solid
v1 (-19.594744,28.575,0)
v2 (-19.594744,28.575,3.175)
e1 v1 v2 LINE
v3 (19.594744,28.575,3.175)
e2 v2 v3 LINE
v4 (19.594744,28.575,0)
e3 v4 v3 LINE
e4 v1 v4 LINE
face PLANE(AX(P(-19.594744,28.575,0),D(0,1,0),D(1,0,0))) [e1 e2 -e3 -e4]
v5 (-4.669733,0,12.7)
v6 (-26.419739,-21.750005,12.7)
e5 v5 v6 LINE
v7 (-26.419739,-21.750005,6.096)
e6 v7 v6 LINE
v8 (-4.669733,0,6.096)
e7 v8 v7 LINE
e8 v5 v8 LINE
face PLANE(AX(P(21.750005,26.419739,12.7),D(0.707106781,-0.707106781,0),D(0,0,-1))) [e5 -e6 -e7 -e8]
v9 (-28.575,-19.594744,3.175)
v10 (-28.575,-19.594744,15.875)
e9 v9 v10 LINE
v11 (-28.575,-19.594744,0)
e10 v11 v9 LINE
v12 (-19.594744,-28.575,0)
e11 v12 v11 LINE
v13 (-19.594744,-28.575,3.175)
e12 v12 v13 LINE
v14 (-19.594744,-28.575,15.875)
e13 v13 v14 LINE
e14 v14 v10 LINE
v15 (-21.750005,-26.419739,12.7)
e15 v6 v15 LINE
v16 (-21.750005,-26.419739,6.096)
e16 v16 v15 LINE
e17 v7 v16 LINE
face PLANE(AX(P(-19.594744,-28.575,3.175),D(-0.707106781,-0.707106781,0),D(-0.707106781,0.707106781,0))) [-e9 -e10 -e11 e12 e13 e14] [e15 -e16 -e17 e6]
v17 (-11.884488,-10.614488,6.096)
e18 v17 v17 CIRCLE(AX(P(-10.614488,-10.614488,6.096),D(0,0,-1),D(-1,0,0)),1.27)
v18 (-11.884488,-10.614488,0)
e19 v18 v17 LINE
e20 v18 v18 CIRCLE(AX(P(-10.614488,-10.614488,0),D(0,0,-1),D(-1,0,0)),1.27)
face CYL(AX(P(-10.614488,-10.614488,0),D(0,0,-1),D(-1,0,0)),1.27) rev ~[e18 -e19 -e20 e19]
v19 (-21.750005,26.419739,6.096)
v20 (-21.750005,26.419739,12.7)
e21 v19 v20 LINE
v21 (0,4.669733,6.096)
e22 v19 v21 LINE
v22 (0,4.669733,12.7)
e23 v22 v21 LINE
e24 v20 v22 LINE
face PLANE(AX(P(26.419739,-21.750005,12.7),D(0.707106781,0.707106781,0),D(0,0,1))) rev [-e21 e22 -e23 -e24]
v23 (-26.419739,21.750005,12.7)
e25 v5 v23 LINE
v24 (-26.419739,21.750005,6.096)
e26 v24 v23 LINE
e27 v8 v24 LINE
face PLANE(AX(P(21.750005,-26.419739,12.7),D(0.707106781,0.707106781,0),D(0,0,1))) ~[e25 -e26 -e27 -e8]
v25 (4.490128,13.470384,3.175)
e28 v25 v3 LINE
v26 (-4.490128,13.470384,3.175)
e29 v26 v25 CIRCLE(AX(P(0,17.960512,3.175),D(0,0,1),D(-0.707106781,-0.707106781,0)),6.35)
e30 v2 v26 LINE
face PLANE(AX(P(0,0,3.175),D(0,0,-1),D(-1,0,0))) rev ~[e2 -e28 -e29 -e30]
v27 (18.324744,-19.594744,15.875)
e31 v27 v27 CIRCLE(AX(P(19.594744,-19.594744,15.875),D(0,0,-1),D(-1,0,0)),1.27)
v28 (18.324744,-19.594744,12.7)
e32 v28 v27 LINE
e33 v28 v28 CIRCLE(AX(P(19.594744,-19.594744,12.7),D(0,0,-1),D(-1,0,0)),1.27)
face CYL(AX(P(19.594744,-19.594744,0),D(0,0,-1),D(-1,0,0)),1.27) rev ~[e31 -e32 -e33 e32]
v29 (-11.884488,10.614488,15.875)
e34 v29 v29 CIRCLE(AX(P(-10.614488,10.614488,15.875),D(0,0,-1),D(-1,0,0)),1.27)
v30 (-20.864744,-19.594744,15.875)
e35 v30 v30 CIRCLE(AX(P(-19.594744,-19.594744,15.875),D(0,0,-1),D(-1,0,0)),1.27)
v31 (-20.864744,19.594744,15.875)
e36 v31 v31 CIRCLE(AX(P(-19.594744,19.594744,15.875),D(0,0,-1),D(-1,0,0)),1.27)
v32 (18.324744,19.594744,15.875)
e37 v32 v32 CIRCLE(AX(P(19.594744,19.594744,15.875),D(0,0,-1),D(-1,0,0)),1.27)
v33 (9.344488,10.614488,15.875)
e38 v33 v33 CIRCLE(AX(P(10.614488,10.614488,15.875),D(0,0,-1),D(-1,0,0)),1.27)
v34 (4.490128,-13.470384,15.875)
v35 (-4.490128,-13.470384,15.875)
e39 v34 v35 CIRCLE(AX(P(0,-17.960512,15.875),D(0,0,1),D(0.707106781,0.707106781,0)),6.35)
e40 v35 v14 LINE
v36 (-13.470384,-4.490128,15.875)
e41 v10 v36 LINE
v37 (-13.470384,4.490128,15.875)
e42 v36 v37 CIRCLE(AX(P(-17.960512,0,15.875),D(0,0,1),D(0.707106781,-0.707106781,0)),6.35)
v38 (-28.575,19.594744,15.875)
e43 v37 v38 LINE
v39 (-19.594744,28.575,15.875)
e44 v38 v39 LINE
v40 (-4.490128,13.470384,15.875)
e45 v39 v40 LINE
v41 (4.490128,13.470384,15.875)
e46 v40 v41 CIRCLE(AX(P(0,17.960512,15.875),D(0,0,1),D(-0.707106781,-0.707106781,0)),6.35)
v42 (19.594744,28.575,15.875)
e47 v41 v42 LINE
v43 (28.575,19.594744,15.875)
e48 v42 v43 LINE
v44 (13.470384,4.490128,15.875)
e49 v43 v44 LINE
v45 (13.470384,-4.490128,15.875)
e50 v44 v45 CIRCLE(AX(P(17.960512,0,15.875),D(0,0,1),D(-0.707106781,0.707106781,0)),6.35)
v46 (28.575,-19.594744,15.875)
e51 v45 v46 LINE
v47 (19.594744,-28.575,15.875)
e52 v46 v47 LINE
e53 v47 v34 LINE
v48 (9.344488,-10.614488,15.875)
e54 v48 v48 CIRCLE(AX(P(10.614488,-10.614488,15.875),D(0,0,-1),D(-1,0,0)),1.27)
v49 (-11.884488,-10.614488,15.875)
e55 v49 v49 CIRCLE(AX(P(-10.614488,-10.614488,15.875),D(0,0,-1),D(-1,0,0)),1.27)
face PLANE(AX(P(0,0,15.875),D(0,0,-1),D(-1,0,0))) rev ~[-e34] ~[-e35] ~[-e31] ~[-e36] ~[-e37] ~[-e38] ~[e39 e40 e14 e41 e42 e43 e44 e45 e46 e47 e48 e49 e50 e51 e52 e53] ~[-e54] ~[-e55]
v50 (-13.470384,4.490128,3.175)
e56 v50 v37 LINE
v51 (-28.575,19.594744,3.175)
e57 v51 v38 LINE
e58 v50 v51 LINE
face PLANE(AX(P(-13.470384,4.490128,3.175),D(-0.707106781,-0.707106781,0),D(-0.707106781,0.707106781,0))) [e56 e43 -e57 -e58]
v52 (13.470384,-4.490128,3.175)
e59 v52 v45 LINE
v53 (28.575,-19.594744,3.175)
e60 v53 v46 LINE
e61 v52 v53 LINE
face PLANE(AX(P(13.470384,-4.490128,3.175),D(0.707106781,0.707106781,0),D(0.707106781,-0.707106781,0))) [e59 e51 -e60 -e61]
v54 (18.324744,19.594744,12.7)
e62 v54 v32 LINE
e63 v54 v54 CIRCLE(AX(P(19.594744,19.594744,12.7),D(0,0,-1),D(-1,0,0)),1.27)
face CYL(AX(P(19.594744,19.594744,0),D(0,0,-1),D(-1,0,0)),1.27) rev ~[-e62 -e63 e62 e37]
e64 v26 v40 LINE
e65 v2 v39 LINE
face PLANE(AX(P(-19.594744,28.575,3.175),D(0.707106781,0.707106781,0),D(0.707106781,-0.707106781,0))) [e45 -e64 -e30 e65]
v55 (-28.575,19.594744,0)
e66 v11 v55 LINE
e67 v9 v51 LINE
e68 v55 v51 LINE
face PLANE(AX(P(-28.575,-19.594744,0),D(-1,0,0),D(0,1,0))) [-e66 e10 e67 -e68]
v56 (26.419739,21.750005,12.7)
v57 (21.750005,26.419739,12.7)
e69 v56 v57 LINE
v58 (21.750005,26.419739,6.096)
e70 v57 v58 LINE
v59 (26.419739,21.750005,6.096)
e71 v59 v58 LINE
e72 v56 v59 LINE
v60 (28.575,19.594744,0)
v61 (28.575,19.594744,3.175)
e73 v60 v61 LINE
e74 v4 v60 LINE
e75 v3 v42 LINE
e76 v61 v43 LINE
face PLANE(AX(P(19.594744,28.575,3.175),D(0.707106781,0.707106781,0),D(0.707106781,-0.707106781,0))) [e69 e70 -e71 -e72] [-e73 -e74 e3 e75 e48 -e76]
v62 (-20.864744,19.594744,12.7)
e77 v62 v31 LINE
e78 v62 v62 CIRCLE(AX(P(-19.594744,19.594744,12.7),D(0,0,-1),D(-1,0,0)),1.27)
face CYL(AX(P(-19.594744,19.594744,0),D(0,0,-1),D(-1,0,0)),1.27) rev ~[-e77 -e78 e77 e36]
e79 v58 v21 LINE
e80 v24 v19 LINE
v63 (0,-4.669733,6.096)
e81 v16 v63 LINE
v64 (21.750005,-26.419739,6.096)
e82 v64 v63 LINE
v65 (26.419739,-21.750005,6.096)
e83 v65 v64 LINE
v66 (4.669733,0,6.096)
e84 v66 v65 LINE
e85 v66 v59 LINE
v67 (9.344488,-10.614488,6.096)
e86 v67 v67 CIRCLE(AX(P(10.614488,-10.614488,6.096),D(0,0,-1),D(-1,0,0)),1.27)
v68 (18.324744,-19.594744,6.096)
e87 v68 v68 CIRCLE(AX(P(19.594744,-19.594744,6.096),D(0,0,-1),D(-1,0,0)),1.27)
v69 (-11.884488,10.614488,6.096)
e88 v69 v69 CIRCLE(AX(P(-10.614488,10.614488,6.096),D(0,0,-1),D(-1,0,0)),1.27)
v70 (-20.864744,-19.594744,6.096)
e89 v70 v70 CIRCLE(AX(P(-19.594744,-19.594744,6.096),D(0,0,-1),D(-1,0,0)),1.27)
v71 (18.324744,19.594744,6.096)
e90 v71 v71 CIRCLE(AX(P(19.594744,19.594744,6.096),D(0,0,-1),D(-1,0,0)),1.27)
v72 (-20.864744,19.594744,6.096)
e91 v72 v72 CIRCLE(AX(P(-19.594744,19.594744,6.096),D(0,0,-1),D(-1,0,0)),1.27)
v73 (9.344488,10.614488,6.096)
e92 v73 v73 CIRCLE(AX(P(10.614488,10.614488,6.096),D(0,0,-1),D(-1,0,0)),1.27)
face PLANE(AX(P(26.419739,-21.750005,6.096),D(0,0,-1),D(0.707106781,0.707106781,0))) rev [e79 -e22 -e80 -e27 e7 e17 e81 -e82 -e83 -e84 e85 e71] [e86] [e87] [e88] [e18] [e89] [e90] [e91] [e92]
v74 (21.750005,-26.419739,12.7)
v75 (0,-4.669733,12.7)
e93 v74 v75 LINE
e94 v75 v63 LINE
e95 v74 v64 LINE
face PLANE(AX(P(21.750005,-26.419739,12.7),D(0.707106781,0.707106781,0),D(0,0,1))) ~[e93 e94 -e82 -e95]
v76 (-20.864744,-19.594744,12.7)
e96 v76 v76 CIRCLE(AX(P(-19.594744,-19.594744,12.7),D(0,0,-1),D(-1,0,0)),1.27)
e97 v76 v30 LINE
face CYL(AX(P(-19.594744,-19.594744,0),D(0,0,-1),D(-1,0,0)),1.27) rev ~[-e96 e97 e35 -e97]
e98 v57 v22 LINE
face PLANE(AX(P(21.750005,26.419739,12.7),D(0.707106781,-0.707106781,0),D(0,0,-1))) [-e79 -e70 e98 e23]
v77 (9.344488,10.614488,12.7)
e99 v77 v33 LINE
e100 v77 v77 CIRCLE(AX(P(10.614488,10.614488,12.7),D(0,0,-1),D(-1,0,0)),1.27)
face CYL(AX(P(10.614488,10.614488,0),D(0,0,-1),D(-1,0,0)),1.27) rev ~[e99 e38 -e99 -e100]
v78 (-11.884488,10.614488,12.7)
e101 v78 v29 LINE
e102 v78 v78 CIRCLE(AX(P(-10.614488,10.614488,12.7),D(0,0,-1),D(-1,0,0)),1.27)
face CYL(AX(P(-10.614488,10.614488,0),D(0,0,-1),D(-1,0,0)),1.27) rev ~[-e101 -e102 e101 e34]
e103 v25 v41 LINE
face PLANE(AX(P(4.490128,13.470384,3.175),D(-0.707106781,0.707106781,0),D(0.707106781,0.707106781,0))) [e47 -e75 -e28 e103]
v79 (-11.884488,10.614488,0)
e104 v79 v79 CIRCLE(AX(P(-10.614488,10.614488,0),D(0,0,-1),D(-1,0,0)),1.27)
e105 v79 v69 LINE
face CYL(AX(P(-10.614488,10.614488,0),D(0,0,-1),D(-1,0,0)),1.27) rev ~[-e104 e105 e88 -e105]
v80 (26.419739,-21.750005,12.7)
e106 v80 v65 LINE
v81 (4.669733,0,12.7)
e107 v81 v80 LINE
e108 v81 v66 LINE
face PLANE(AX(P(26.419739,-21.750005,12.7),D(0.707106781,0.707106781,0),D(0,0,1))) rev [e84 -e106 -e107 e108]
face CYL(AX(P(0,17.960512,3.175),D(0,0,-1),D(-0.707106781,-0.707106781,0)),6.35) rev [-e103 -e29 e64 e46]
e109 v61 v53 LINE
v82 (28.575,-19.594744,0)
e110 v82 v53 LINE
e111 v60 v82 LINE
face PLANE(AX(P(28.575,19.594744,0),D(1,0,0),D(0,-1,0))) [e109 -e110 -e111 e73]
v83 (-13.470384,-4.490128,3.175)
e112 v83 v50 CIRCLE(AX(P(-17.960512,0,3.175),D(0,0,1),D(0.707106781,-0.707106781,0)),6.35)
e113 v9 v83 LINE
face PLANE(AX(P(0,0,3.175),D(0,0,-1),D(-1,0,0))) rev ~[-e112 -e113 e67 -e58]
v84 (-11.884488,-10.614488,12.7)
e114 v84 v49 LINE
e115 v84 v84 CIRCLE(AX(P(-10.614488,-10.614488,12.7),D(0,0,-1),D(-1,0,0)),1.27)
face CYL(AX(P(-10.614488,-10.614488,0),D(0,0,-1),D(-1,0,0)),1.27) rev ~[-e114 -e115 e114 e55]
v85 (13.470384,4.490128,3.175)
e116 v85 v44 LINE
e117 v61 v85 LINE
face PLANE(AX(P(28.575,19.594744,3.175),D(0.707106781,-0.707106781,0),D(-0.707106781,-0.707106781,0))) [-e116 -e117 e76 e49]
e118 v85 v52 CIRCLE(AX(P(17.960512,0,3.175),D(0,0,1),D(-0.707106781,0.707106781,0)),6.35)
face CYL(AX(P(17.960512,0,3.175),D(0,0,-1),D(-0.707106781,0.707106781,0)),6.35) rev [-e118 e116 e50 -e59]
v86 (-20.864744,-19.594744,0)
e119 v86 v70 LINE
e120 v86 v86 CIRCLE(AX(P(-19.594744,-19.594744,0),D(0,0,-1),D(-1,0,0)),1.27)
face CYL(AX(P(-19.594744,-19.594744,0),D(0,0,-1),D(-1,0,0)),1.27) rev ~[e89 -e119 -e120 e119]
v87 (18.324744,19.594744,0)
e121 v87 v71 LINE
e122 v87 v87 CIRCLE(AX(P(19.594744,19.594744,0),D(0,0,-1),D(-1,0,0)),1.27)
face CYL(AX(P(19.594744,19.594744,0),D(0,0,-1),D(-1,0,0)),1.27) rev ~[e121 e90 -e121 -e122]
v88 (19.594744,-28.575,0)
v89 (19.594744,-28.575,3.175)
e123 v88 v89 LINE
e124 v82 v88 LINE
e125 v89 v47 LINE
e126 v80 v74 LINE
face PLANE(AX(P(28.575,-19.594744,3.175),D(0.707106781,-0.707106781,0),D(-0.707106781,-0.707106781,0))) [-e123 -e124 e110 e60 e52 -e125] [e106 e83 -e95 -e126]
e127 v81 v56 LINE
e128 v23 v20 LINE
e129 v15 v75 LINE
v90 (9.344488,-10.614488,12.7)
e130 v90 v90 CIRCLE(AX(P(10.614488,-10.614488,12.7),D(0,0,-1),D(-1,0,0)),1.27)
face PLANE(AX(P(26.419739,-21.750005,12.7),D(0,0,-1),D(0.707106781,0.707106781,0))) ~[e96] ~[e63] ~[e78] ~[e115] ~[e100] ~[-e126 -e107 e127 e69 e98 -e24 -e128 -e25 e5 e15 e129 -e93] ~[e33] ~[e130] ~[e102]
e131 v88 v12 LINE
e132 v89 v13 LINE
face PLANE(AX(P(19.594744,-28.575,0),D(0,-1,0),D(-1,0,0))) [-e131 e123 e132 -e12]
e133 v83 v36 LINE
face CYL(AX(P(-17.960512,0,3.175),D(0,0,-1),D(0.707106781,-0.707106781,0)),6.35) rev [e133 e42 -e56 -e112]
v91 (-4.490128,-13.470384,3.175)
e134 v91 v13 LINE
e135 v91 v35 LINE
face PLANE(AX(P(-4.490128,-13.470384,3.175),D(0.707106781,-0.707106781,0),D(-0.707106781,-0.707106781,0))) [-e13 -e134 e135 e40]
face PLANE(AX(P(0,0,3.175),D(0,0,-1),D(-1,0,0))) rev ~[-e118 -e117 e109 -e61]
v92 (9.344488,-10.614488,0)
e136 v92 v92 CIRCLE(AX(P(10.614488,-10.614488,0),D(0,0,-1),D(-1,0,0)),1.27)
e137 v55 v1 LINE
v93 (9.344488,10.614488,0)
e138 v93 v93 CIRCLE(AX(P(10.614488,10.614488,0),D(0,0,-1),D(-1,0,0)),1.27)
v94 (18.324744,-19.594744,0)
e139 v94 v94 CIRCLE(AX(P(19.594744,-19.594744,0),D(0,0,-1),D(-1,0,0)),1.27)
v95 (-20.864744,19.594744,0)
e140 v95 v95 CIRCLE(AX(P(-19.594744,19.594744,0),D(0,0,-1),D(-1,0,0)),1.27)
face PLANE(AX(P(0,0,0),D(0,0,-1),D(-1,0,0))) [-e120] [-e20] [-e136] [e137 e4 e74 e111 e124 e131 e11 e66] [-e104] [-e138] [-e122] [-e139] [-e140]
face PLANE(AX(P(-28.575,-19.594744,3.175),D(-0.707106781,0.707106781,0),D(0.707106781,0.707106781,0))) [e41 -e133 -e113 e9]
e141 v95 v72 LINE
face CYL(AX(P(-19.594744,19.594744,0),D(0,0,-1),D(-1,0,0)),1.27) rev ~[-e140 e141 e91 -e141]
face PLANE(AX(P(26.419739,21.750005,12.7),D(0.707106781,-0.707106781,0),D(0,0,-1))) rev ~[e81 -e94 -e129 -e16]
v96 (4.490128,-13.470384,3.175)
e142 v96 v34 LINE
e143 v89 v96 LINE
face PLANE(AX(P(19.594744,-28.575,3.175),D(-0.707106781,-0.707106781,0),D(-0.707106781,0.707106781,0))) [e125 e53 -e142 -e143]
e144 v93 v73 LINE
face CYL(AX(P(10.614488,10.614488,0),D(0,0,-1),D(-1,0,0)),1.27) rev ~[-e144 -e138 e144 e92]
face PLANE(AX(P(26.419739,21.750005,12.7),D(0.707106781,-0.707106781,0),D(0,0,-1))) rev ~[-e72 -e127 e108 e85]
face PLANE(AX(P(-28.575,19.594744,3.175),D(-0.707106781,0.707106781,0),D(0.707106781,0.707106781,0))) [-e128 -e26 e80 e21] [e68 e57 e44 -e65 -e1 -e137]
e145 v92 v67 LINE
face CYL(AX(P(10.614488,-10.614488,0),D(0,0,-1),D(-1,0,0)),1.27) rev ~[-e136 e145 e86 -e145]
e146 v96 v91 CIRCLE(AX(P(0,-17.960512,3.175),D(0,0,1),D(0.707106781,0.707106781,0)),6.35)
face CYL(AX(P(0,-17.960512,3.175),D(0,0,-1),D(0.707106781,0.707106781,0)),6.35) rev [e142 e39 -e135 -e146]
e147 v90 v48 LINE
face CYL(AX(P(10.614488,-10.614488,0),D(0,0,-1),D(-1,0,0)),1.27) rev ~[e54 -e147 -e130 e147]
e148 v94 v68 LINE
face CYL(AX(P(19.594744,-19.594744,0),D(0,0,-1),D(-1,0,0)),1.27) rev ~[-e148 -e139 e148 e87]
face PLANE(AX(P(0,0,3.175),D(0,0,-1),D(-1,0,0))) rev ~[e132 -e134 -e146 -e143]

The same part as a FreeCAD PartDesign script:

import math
import FreeCAD as App
import Part
import Sketcher
from FreeCAD import Vector
Q = App.Units.Quantity


def add_polygon(sketch, points):
    """Adds a closed chain of lines whose ends are joined by coincident constraints."""
    first, n = sketch.GeometryCount, len(points)
    for a, b in zip(points, points[1:] + points[:1]):
        sketch.addGeometry(Part.LineSegment(App.Vector(*a, 0), App.Vector(*b, 0)), False)
    for i in range(n):
        sketch.addConstraint(Sketcher.Constraint("Coincident", first + i, 2, first + (i + 1) % n, 1))

doc = App.newDocument("Part")
body = doc.addObject("PartDesign::Body", "Body")

# Sketch on XY plane
sketch1 = doc.addObject("Sketcher::SketchObject", "Sketch")
body.addObject(sketch1)
sketch1.AttachmentSupport = (doc.XY_Plane, [""])
sketch1.MapMode = "FlatFace"
add_polygon(sketch1, [(-20, 29), (-29, 20), (-29, -20), (-20, -29), (20, -29), (29, -20), (29, 20), (20, 29)])  # lines 0-7
sketch1.addConstraint([
    Sketcher.Constraint("Vertical", 1),
    Sketcher.Constraint("Horizontal", 3),
    Sketcher.Constraint("Vertical", 5),
    Sketcher.Constraint("Horizontal", 7),
    Sketcher.Constraint("Symmetric", 0, 2, 4, 2, -1, 1),
    Sketcher.Constraint("Symmetric", 2, 2, 6, 2, -1, 1),
    Sketcher.Constraint("Perpendicular", 0, 2),
    Sketcher.Constraint("Perpendicular", 2, 4),
    Sketcher.Constraint("Perpendicular", 4, 6),
    Sketcher.Constraint("Horizontal", 1, 2, 4, 2),
    Sketcher.Constraint("Vertical", 3, 2, 6, 2),
    Sketcher.Constraint("Equal", 7, 1),
    Sketcher.Constraint("Distance", 0, Q("0.5 in")),
    Sketcher.Constraint("DistanceX", 1, 2, 4, 2, Q("2.25 in")),
])
pad1 = doc.addObject("PartDesign::Pad", "Pad")
body.addObject(pad1)
pad1.Profile = sketch1
pad1.Length = Q("0.125 in")

# Sketch on XY plane
sketch2 = doc.addObject("Sketcher::SketchObject", "Sketch001")
body.addObject(sketch2)
sketch2.AttachmentSupport = (doc.XY_Plane, [""])
sketch2.MapMode = "FlatFace"
sketch2.AttachmentOffset = App.Placement(Vector(0, 0, 0.125 * 25.4), App.Rotation())
sketch2.addGeometry([
    Part.LineSegment(Vector(-20, 29, 0), Vector(-29, 20, 0)),  # 0
    Part.LineSegment(Vector(-29, 20, 0), Vector(-13, 4, 0)),  # 1
    Part.ArcOfCircle(Part.Circle(Vector(-18, 0, 0), Vector(0, 0, 1), 6), math.radians(-45), math.radians(45)),  # 2
    Part.LineSegment(Vector(-13, -4, 0), Vector(-29, -20, 0)),  # 3
    Part.LineSegment(Vector(-29, -20, 0), Vector(-20, -29, 0)),  # 4
    Part.LineSegment(Vector(-20, -29, 0), Vector(-4, -13, 0)),  # 5
    Part.ArcOfCircle(Part.Circle(Vector(0, -18, 0), Vector(0, 0, 1), 6), math.radians(45), math.radians(135)),  # 6
    Part.LineSegment(Vector(4, -13, 0), Vector(20, -29, 0)),  # 7
    Part.LineSegment(Vector(20, -29, 0), Vector(29, -20, 0)),  # 8
    Part.LineSegment(Vector(29, -20, 0), Vector(13, -4, 0)),  # 9
    Part.ArcOfCircle(Part.Circle(Vector(18, 0, 0), Vector(0, 0, 1), 6), math.radians(135), math.radians(225)),  # 10
    Part.LineSegment(Vector(13, 4, 0), Vector(29, 20, 0)),  # 11
    Part.LineSegment(Vector(29, 20, 0), Vector(20, 29, 0)),  # 12
    Part.LineSegment(Vector(20, 29, 0), Vector(4, 13, 0)),  # 13
    Part.ArcOfCircle(Part.Circle(Vector(0, 18, 0), Vector(0, 0, 1), 6), math.radians(-135), math.radians(-45)),  # 14
    Part.LineSegment(Vector(-4, 13, 0), Vector(-20, 29, 0)),  # 15
], False)
sketch2.addConstraint([
    Sketcher.Constraint("Coincident", 0, 2, 1, 1),
    Sketcher.Constraint("Tangent", 1, 2, 2, 2),
    Sketcher.Constraint("Tangent", 2, 1, 3, 1),
    Sketcher.Constraint("Coincident", 3, 2, 4, 1),
    Sketcher.Constraint("Coincident", 4, 2, 5, 1),
    Sketcher.Constraint("Tangent", 5, 2, 6, 2),
    Sketcher.Constraint("Tangent", 6, 1, 7, 1),
    Sketcher.Constraint("Coincident", 7, 2, 8, 1),
    Sketcher.Constraint("Coincident", 8, 2, 9, 1),
    Sketcher.Constraint("Tangent", 9, 2, 10, 2),
    Sketcher.Constraint("Tangent", 10, 1, 11, 1),
    Sketcher.Constraint("Coincident", 11, 2, 12, 1),
    Sketcher.Constraint("Coincident", 12, 2, 13, 1),
    Sketcher.Constraint("Tangent", 13, 2, 14, 2),
    Sketcher.Constraint("Tangent", 14, 1, 15, 1),
    Sketcher.Constraint("Coincident", 15, 2, 0, 1),
    Sketcher.Constraint("Equal", 2, 6),
    Sketcher.Constraint("Equal", 6, 10),
    Sketcher.Constraint("Equal", 10, 14),
    Sketcher.Constraint("Symmetric", 2, 3, 10, 3, -1, 1),
    Sketcher.Constraint("Symmetric", 6, 3, 14, 3, -1, 1),
    Sketcher.Constraint("Symmetric", 0, 2, 8, 2, -1, 1),
    Sketcher.Constraint("Symmetric", 3, 2, 11, 2, -1, 1),
    Sketcher.Constraint("Symmetric", 4, 2, 12, 2, -1, 1),
    Sketcher.Constraint("Symmetric", 7, 2, 15, 2, -1, 1),
    Sketcher.Constraint("Symmetric", 5, 2, 6, 1, -2),
    Sketcher.Constraint("Symmetric", 3, 2, 8, 2, -2),
    Sketcher.Constraint("PointOnObject", 2, 3, -1),
    Sketcher.Constraint("Perpendicular", 0, 1),
    Sketcher.Constraint("Perpendicular", 1, 3),
    Sketcher.Constraint("Perpendicular", 3, 4),
    Sketcher.Constraint("Perpendicular", 4, 5),
    Sketcher.Constraint("Equal", 3, 5),
    Sketcher.Constraint("Radius", 2, Q("0.25 in")),
    Sketcher.Constraint("Distance", 0, Q("0.5 in")),
    Sketcher.Constraint("DistanceX", 0, 2, -1, 1, Q("1.125 in")),
])
pad2 = doc.addObject("PartDesign::Pad", "Pad001")
body.addObject(pad2)
pad2.Profile = sketch2
pad2.Length = Q("0.5 in")

# Sketch on an angled plane
sketch3 = doc.addObject("Sketcher::SketchObject", "Sketch002")
body.addObject(sketch3)
sketch3.Placement = App.Placement(Vector(24.084872, 24.084872, 0), App.Rotation(Vector(0, 0, -1), Vector(-0.707106781, 0.707106781, 0), Vector(0.707106781, 0.707106781, 0), "ZXY"))
add_polygon(sketch3, [(-13, 3), (-13, -3), (-6, -3), (-6, 3)])  # lines 0-3
sketch3.addConstraint([
    Sketcher.Constraint("Vertical", 0),
    Sketcher.Constraint("Horizontal", 1),
    Sketcher.Constraint("Vertical", 2),
    Sketcher.Constraint("Horizontal", 3),
    Sketcher.Constraint("Equal", 3, 0),
    Sketcher.Constraint("DistanceX", 1, 1, 1, 2, Q("0.26 in")),
    Sketcher.Constraint("DistanceX", 0, 2, -1, 1, Q("0.5 in")),
    Sketcher.Constraint("DistanceY", 0, 2, -1, 1, Q("0.13 in")),
])
pocket1 = doc.addObject("PartDesign::Pocket", "Pocket")
body.addObject(pocket1)
pocket1.Profile = sketch3
pocket1.Length = 154.291035
pocket1.Midplane = True
doc.recompute()

mirrored = doc.addObject("PartDesign::Mirrored", "Mirrored")
body.addObject(mirrored)
mirrored.Originals = [pocket1]
mirrored.MirrorPlane = (doc.XZ_Plane, [""])
body.Tip = mirrored

# Sketch on XY plane
sketch4 = doc.addObject("Sketcher::SketchObject", "Sketch003")
body.addObject(sketch4)
sketch4.AttachmentSupport = (doc.XY_Plane, [""])
sketch4.MapMode = "FlatFace"
sketch4.addGeometry([
    Part.Circle(Vector(19.6, 19.6, 0), Vector(0, 0, 1), 1.3),  # 0
    Part.Circle(Vector(10.6, 10.6, 0), Vector(0, 0, 1), 1.3),  # 1
    Part.Circle(Vector(-10.6, 10.6, 0), Vector(0, 0, 1), 1.3),  # 2
    Part.Circle(Vector(-19.6, 19.6, 0), Vector(0, 0, 1), 1.3),  # 3
    Part.Circle(Vector(-19.6, -19.6, 0), Vector(0, 0, 1), 1.3),  # 4
    Part.Circle(Vector(-10.6, -10.6, 0), Vector(0, 0, 1), 1.3),  # 5
    Part.Circle(Vector(19.6, -19.6, 0), Vector(0, 0, 1), 1.3),  # 6
    Part.Circle(Vector(10.6, -10.6, 0), Vector(0, 0, 1), 1.3),  # 7
], False)
sketch4.addConstraint([
    Sketcher.Constraint("Equal", 0, 1),
    Sketcher.Constraint("Equal", 1, 2),
    Sketcher.Constraint("Equal", 2, 3),
    Sketcher.Constraint("Equal", 3, 4),
    Sketcher.Constraint("Equal", 4, 5),
    Sketcher.Constraint("Equal", 5, 6),
    Sketcher.Constraint("Equal", 6, 7),
    Sketcher.Constraint("Symmetric", 0, 3, 4, 3, -1, 1),
    Sketcher.Constraint("Symmetric", 1, 3, 5, 3, -1, 1),
    Sketcher.Constraint("Symmetric", 3, 3, 6, 3, -1, 1),
    Sketcher.Constraint("Symmetric", 2, 3, 7, 3, -1, 1),
    Sketcher.Constraint("Symmetric", 1, 3, 2, 3, -2),
    Sketcher.Constraint("Symmetric", 0, 3, 3, 3, -2),
    Sketcher.Constraint("Diameter", 0, Q("0.1 in")),
    Sketcher.Constraint("DistanceX", 2, 3, 0, 3, Q("30.209232 mm")),
    Sketcher.Constraint("DistanceY", 4, 3, 2, 3, Q("30.209232 mm")),
    Sketcher.Constraint("DistanceX", -1, 1, 0, 3, Q("19.594744 mm")),
    Sketcher.Constraint("DistanceY", -1, 1, 0, 3, Q("19.594744 mm")),
])
pocket2 = doc.addObject("PartDesign::Pocket", "Pocket001")
body.addObject(pocket2)
pocket2.Profile = sketch4
pocket2.Length = Q("1 in")
pocket2.Reversed = True

doc.recompute()
